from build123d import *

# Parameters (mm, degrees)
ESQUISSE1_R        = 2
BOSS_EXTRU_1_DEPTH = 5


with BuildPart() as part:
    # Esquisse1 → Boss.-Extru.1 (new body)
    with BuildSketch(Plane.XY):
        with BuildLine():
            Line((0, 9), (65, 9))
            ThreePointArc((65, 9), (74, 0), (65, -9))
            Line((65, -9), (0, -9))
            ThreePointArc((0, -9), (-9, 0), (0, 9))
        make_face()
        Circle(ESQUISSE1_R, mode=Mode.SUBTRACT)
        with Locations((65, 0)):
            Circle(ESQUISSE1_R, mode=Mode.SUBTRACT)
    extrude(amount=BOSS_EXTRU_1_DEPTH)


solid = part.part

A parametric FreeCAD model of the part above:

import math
import FreeCAD as App
import Part
import Sketcher
from FreeCAD import Vector

doc = App.newDocument("Part")
body = doc.addObject("PartDesign::Body", "Body")

sketch1 = doc.addObject("Sketcher::SketchObject", "Sketch")
body.addObject(sketch1)
sketch1.AttachmentSupport = (doc.XY_Plane, [""])
sketch1.MapMode = "FlatFace"
sketch1.addGeometry(Part.LineSegment(Vector(65, 9, 0), Vector(0, 9, 0)), False)
sketch1.addGeometry(Part.ArcOfCircle(Part.Circle(Vector(0, 0, 0), Vector(0, 0, 1), 9), math.radians(90), math.radians(270)), False)
sketch1.addGeometry(Part.LineSegment(Vector(0, -9, 0), Vector(65, -9, 0)), False)
sketch1.addGeometry(Part.ArcOfCircle(Part.Circle(Vector(65, 0, 0), Vector(0, 0, 1), 9), math.radians(-90), math.radians(90)), False)
sketch1.addGeometry(Part.Circle(Vector(65, 0, 0), Vector(0, 0, 1), 2), False)
sketch1.addGeometry(Part.Circle(Vector(0, 0, 0), Vector(0, 0, 1), 2), False)
sketch1.addConstraint(Sketcher.Constraint("Tangent", 0, 2, 1, 1))
sketch1.addConstraint(Sketcher.Constraint("Tangent", 1, 2, 2, 1))
sketch1.addConstraint(Sketcher.Constraint("Tangent", 2, 2, 3, 1))
sketch1.addConstraint(Sketcher.Constraint("Tangent", 3, 2, 0, 1))
sketch1.addConstraint(Sketcher.Constraint("Horizontal", 0))
sketch1.addConstraint(Sketcher.Constraint("Horizontal", 2))
sketch1.addConstraint(Sketcher.Constraint("Coincident", 1, 3, -1, 1))
sketch1.addConstraint(Sketcher.Constraint("Coincident", 5, 3, -1, 1))
sketch1.addConstraint(Sketcher.Constraint("Coincident", 4, 3, 3, 3))
sketch1.addConstraint(Sketcher.Constraint("Equal", 4, 5))
sketch1.addConstraint(Sketcher.Constraint("Diameter", 4, 4.0))
sketch1.addConstraint(Sketcher.Constraint("Radius", 1, 9.0))
sketch1.addConstraint(Sketcher.Constraint("DistanceX", 0, 2, 0, 1, 65.0))
pad1 = doc.addObject("PartDesign::Pad", "Pad")
body.addObject(pad1)
pad1.Profile = sketch1
pad1.Length = 5

doc.recompute()
